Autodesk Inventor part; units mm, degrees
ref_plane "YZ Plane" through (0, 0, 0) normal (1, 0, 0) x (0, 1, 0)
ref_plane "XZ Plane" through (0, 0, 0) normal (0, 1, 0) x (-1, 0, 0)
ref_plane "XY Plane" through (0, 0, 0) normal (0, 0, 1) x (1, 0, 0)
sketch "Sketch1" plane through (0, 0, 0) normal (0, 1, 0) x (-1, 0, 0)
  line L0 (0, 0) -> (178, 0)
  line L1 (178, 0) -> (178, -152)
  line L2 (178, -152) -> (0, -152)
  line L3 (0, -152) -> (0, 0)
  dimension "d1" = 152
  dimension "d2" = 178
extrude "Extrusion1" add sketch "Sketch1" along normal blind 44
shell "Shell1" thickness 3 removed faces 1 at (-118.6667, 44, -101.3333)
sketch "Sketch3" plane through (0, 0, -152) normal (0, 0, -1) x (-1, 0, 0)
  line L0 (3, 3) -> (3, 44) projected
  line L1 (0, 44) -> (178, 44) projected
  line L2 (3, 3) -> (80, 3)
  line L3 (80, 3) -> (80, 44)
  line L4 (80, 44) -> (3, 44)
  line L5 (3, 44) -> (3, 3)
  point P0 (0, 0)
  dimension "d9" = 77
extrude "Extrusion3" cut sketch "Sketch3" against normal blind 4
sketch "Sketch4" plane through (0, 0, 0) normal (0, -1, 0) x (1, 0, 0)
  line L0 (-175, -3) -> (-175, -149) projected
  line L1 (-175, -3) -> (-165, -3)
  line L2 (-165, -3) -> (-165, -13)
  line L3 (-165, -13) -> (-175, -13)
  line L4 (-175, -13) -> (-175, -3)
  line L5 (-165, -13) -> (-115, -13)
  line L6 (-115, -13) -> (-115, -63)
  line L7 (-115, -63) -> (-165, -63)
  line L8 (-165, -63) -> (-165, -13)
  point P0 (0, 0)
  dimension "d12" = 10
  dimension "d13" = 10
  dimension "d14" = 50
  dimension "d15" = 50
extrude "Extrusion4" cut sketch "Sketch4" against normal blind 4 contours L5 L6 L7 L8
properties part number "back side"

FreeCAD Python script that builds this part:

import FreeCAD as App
import Part
import Sketcher
from FreeCAD import Vector
Q = App.Units.Quantity


def faces_at(feature, points):
    """Names of the faces that lie closest to the given points."""
    faces = feature.Shape.Faces
    near = lambda p: min(range(len(faces)), key=lambda i: faces[i].distToShape(Part.Vertex(*p))[0])
    return sorted({f"Face{near(p) + 1}" for p in points})

doc = App.newDocument("Part")
body = doc.addObject("PartDesign::Body", "Body")

sketch1 = body.newObject("Sketcher::SketchObject", "Sketch")
sketch1.AttachmentSupport = (doc.getObject("XZ_Plane"), [""])
sketch1.MapMode = "FlatFace"
sketch1.addGeometry([
    Part.LineSegment(Vector(-178, 0, 0), Vector(0, 0, 0)),
    Part.LineSegment(Vector(0, 0, 0), Vector(0, -152, 0)),
    Part.LineSegment(Vector(0, -152, 0), Vector(-178, -152, 0)),
    Part.LineSegment(Vector(-178, -152, 0), Vector(-178, 0, 0)),
], False)
sketch1.addConstraint([
    Sketcher.Constraint("Coincident", 0, 2, 1, 1),
    Sketcher.Constraint("Coincident", 1, 2, 2, 1),
    Sketcher.Constraint("Coincident", 2, 2, 3, 1),
    Sketcher.Constraint("Coincident", 3, 2, 0, 1),
    Sketcher.Constraint("Horizontal", 0),
    Sketcher.Constraint("Vertical", 1),
    Sketcher.Constraint("Horizontal", 2),
    Sketcher.Constraint("Vertical", 3),
    Sketcher.Constraint("Coincident", 0, 2, -1, 1),
    Sketcher.Constraint("DistanceX", 0, 1, 0, 2, Q("178 mm")),
    Sketcher.Constraint("DistanceY", 1, 2, 1, 1, Q("152 mm")),
])
pad1 = body.newObject("PartDesign::Pad", "Pad")
pad1.Profile = sketch1
pad1.Length = 44
pad1.Reversed = True
doc.recompute()

thickness = body.newObject("PartDesign::Thickness", "Thickness")
thickness.Base = (pad1, faces_at(pad1, [(-118.667, 44, -101.333)]))
thickness.Value = 3
thickness.Reversed = True
thickness.Join = "Intersection"

sketch2 = body.newObject("Sketcher::SketchObject", "Sketch001")
sketch2.AttachmentSupport = (doc.getObject("XY_Plane"), [""])
sketch2.MapMode = "FlatFace"
sketch2.AttachmentOffset = App.Placement(Vector(0, 0, -152), App.Rotation())
sketch2.addGeometry([
    Part.LineSegment(Vector(-3, 44, 0), Vector(-3, 3, 0)),
    Part.LineSegment(Vector(-3, 3, 0), Vector(-80, 3, 0)),
    Part.LineSegment(Vector(-80, 3, 0), Vector(-80, 44, 0)),
    Part.LineSegment(Vector(-80, 44, 0), Vector(-3, 44, 0)),
], False)
sketch2.addConstraint([
    Sketcher.Constraint("Coincident", 0, 2, 1, 1),
    Sketcher.Constraint("Coincident", 1, 2, 2, 1),
    Sketcher.Constraint("Coincident", 2, 2, 3, 1),
    Sketcher.Constraint("Coincident", 3, 2, 0, 1),
    Sketcher.Constraint("Vertical", 0),
    Sketcher.Constraint("Horizontal", 1),
    Sketcher.Constraint("Vertical", 2),
    Sketcher.Constraint("Horizontal", 3),
    Sketcher.Constraint("DistanceX", 1, 2, 1, 1, Q("77 mm")),
    Sketcher.Constraint("DistanceY", 0, 2, 0, 1, Q("41 mm")),
    Sketcher.Constraint("DistanceX", 0, 2, -1, 1, Q("3 mm")),
    Sketcher.Constraint("DistanceY", -1, 1, 0, 2, Q("3 mm")),
])
pocket1 = body.newObject("PartDesign::Pocket", "Pocket")
pocket1.Profile = sketch2
pocket1.Length = 4
pocket1.Reversed = True

sketch3 = body.newObject("Sketcher::SketchObject", "Sketch002")
sketch3.AttachmentSupport = (doc.getObject("XZ_Plane"), [""])
sketch3.MapMode = "FlatFace"
sketch3.addGeometry([
    Part.LineSegment(Vector(-115, -13, 0), Vector(-165, -13, 0)),
    Part.LineSegment(Vector(-165, -13, 0), Vector(-165, -63, 0)),
    Part.LineSegment(Vector(-165, -63, 0), Vector(-115, -63, 0)),
    Part.LineSegment(Vector(-115, -63, 0), Vector(-115, -13, 0)),
], False)
sketch3.addConstraint([
    Sketcher.Constraint("Coincident", 0, 2, 1, 1),
    Sketcher.Constraint("Coincident", 1, 2, 2, 1),
    Sketcher.Constraint("Coincident", 2, 2, 3, 1),
    Sketcher.Constraint("Coincident", 3, 2, 0, 1),
    Sketcher.Constraint("Horizontal", 0),
    Sketcher.Constraint("Vertical", 1),
    Sketcher.Constraint("Horizontal", 2),
    Sketcher.Constraint("Vertical", 3),
    Sketcher.Constraint("Equal", 2, 1),
    Sketcher.Constraint("DistanceX", 0, 2, 0, 1, Q("50 mm")),
    Sketcher.Constraint("DistanceX", 0, 2, -1, 1, Q("165 mm")),
    Sketcher.Constraint("DistanceY", 0, 2, -1, 1, Q("13 mm")),
])
pocket2 = body.newObject("PartDesign::Pocket", "Pocket001")
pocket2.Profile = sketch3
pocket2.Length = 4

doc.recompute()
